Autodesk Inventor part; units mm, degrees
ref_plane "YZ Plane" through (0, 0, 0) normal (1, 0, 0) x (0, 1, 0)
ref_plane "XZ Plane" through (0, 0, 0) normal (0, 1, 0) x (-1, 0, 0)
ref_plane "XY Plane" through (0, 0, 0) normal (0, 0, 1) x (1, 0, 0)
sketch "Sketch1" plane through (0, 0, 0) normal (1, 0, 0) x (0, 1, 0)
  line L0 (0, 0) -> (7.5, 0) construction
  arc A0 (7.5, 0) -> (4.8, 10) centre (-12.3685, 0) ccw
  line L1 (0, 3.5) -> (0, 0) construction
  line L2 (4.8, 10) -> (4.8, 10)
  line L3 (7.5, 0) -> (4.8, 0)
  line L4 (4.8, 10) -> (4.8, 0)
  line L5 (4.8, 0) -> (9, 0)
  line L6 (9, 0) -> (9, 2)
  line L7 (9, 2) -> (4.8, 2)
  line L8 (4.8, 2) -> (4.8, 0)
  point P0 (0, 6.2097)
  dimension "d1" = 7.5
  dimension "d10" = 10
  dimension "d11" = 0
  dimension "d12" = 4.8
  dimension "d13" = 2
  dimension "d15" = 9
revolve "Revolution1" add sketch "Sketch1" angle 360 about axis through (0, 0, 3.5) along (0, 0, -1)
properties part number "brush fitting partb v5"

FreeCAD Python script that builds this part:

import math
import FreeCAD as App
import Part
import Sketcher

V = App.Vector
Q = App.Units.Quantity

doc = App.newDocument("Part")
body = doc.addObject("PartDesign::Body", "Body")

sketch1 = doc.addObject("Sketcher::SketchObject", "Sketch")
body.addObject(sketch1)
sketch1.AttachmentSupport = (doc.YZ_Plane, [""])
sketch1.MapMode = "FlatFace"
sketch1.addGeometry([
    Part.LineSegment(V(4.8, 0, 0), V(9, 0, 0)),
    Part.LineSegment(V(9, 0, 0), V(9, 2, 0)),
    Part.LineSegment(V(9, 2, 0), V(7.4, 2, 0)),
    Part.ArcOfCircle(Part.Circle(V(-12.4, 0, 0), V(0, 0, 1), 19.9), math.radians(6), math.radians(30)),
    Part.LineSegment(V(4.8, 10, 0), V(4.8, 0, 0)),
], False)
sketch1.addConstraint([
    Sketcher.Constraint("Coincident", 0, 2, 1, 1),
    Sketcher.Constraint("Coincident", 1, 2, 2, 1),
    Sketcher.Constraint("Coincident", 2, 2, 3, 1),
    Sketcher.Constraint("Coincident", 3, 2, 4, 1),
    Sketcher.Constraint("Coincident", 4, 2, 0, 1),
    Sketcher.Constraint("Horizontal", 0),
    Sketcher.Constraint("Vertical", 1),
    Sketcher.Constraint("Horizontal", 2),
    Sketcher.Constraint("Vertical", 4),
    Sketcher.Constraint("PointOnObject", 3, 3, -1),
    Sketcher.Constraint("PointOnObject", 0, 2, -1),
    Sketcher.Constraint("DistanceY", 1, 1, 1, 2, Q("2 mm")),
    Sketcher.Constraint("DistanceY", 4, 2, 4, 1, Q("10 mm")),
    Sketcher.Constraint("DistanceX", -1, 1, 0, 2, Q("9 mm")),
    Sketcher.Constraint("DistanceX", -1, 1, 3, 2, Q("4.8 mm")),
    Sketcher.Constraint("Radius", 3, Q("19.8685 mm")),
])
revolution = doc.addObject("PartDesign::Revolution", "Revolution")
body.addObject(revolution)
revolution.Profile = sketch1
revolution.ReferenceAxis = (sketch1, ["V_Axis"])
revolution.Angle = 360

doc.recompute()
